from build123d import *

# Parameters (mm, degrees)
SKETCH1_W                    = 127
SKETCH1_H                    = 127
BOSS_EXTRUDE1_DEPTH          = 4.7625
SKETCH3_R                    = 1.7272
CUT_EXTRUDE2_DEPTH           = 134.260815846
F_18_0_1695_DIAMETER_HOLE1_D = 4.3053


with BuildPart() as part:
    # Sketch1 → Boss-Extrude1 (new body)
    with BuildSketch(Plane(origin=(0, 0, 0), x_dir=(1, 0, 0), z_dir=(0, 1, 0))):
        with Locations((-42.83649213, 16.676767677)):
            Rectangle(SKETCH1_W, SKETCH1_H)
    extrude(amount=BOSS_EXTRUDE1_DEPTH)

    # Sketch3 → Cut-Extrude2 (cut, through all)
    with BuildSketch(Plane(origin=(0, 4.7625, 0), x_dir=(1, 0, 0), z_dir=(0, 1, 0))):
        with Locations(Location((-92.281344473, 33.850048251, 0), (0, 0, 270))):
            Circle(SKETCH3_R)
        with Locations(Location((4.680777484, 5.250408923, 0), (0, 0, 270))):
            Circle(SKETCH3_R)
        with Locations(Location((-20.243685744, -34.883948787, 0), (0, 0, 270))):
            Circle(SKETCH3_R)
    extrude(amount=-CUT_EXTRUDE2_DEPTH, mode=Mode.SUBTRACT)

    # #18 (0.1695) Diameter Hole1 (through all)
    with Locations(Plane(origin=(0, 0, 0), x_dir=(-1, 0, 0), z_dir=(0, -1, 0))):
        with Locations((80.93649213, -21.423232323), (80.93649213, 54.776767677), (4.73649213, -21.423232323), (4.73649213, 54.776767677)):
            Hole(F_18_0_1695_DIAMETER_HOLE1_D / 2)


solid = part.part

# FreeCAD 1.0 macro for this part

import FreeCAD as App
import Part
import Sketcher
from FreeCAD import Vector
Q = App.Units.Quantity


def add_polygon(sketch, points):
    """Adds a closed chain of lines whose ends are joined by coincident constraints."""
    first, n = sketch.GeometryCount, len(points)
    for a, b in zip(points, points[1:] + points[:1]):
        sketch.addGeometry(Part.LineSegment(App.Vector(*a, 0), App.Vector(*b, 0)), False)
    for i in range(n):
        sketch.addConstraint(Sketcher.Constraint("Coincident", first + i, 2, first + (i + 1) % n, 1))

doc = App.newDocument("Part")
params = doc.addObject("Spreadsheet::Sheet", "Params")
for row, (alias, value) in enumerate([
    ("sketch1_width", "5 in"),
    ("pad1_length", "0.1875 in"),
    ("sketch2_diameter", "0.136 in"),
    ("hole_diameter", "0.1695 in"),
], start=1):
    params.set(f"A{row}", alias)
    params.set(f"B{row}", "=" + value)
    params.setAlias(f"B{row}", alias)

body = doc.addObject("PartDesign::Body", "Body")

sketch1 = body.newObject("Sketcher::SketchObject", "Sketch")
sketch1.AttachmentSupport = (doc.getObject("XZ_Plane"), [""])
sketch1.MapMode = "FlatFace"
add_polygon(sketch1, [(-106, -80), (-106, 47), (21, 47), (21, -80)])
sketch1.addConstraint([
    Sketcher.Constraint("Vertical", 0),
    Sketcher.Constraint("Horizontal", 1),
    Sketcher.Constraint("Vertical", 2),
    Sketcher.Constraint("Horizontal", 3),
    Sketcher.Constraint("Equal", 3, 0),
    Sketcher.Constraint("DistanceX", 1, 1, 1, 2, Q("5 in")),
    Sketcher.Constraint("DistanceX", 0, 2, -1, 1, Q("106.336492 mm")),
    Sketcher.Constraint("DistanceY", -1, 1, 0, 2, Q("46.823232 mm")),
])
sketch1.setExpression("Constraints[9]", "Params.sketch1_width")
pad1 = body.newObject("PartDesign::Pad", "Pad")
pad1.Profile = sketch1
pad1.setExpression("Length", "Params.pad1_length")
pad1.Reversed = True

sketch2 = body.newObject("Sketcher::SketchObject", "Sketch001")
sketch2.AttachmentSupport = (doc.getObject("XZ_Plane"), [""])
sketch2.MapMode = "FlatFace"
sketch2.AttachmentOffset = App.Placement(Vector(0, 0, -0.1875 * 25.4), App.Rotation())
sketch2.addGeometry([
    Part.Circle(Vector(-92.3, -33.9, 0), Vector(0, 0, 1), 1.7),
    Part.Circle(Vector(4.7, -5.3, 0), Vector(0, 0, 1), 1.7),
    Part.Circle(Vector(-20.2, 34.9, 0), Vector(0, 0, 1), 1.7),
], False)
sketch2.addConstraint([
    Sketcher.Constraint("Equal", 0, 1),
    Sketcher.Constraint("Equal", 1, 2),
    Sketcher.Constraint("Diameter", 0, Q("0.136 in")),
    Sketcher.Constraint("DistanceY", 0, 3, -1, 1, Q("33.850048 mm")),
    Sketcher.Constraint("DistanceY", 1, 3, -1, 1, Q("5.250409 mm")),
    Sketcher.Constraint("DistanceY", -1, 1, 2, 3, Q("34.883949 mm")),
    Sketcher.Constraint("DistanceX", 0, 3, 1, 3, Q("96.962122 mm")),
    Sketcher.Constraint("DistanceX", 0, 3, 2, 3, Q("72.037659 mm")),
    Sketcher.Constraint("DistanceX", 0, 3, -1, 1, Q("92.281344 mm")),
])
sketch2.setExpression("Constraints[2]", "Params.sketch2_diameter")
pocket1 = body.newObject("PartDesign::Pocket", "Pocket")
pocket1.Profile = sketch2
pocket1.Type = "ThroughAll"
pocket1.Reversed = True

sketch3 = body.newObject("Sketcher::SketchObject", "Sketch002")
sketch3.AttachmentSupport = (doc.getObject("XZ_Plane"), [""])
sketch3.MapMode = "FlatFace"
sketch3.addGeometry([
    Part.Circle(Vector(-80.9, 21.4, 0), Vector(0, 0, 1), 2.2),
    Part.Circle(Vector(-80.9, -54.8, 0), Vector(0, 0, 1), 2.2),
    Part.Circle(Vector(-4.7, 21.4, 0), Vector(0, 0, 1), 2.2),
    Part.Circle(Vector(-4.7, -54.8, 0), Vector(0, 0, 1), 2.2),
], False)
sketch3.addConstraint([
    Sketcher.Constraint("Equal", 0, 1),
    Sketcher.Constraint("Equal", 1, 2),
    Sketcher.Constraint("Equal", 2, 3),
    Sketcher.Constraint("Horizontal", 0, 3, 2, 3),
    Sketcher.Constraint("Horizontal", 1, 3, 3, 3),
    Sketcher.Constraint("Vertical", 0, 3, 1, 3),
    Sketcher.Constraint("Vertical", 2, 3, 3, 3),
    Sketcher.Constraint("DistanceY", 1, 3, 0, 3, Q("3 in")),
    Sketcher.Constraint("DistanceX", 0, 3, 2, 3, Q("3 in")),
    Sketcher.Constraint("Diameter", 0, Q("0.1695 in")),
    Sketcher.Constraint("DistanceX", 0, 3, -1, 1, Q("80.936492 mm")),
    Sketcher.Constraint("DistanceY", -1, 1, 0, 3, Q("21.423232 mm")),
])
doc.recompute()
hole = body.newObject("PartDesign::Hole", "Hole")
hole.Profile = sketch3
hole.ThreadType = "None"
hole.setExpression("Diameter", "Params.hole_diameter")
hole.DepthType = "ThroughAll"

doc.recompute()
